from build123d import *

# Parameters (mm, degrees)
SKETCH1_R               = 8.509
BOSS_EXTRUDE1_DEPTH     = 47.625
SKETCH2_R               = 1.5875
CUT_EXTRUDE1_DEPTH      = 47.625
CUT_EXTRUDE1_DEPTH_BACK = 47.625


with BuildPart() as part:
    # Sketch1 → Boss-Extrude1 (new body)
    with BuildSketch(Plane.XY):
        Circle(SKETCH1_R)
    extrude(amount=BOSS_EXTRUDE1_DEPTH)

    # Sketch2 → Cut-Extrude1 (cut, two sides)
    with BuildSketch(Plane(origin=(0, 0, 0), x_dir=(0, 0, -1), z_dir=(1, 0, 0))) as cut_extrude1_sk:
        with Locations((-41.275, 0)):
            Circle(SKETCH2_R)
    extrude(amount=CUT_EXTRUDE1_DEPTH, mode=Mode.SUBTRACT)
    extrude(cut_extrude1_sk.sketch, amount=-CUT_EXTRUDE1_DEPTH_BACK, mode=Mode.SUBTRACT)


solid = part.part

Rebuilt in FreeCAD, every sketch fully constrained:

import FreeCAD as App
import Part
import Sketcher
Q = App.Units.Quantity

doc = App.newDocument("Part")
body = doc.addObject("PartDesign::Body", "Body")

# Sketch on XY plane
sketch1 = body.newObject("Sketcher::SketchObject", "Sketch")
sketch1.AttachmentSupport = (doc.getObject("XY_Plane"), [""])
sketch1.MapMode = "FlatFace"
sketch1.addGeometry(Part.Circle(App.Vector(0, 0, 0), App.Vector(0, 0, 1), 9), False)
sketch1.addConstraint(Sketcher.Constraint("Coincident", 0, 3, -1, 1))
sketch1.addConstraint(Sketcher.Constraint("Diameter", 0, Q("0.67 in")))
pad1 = body.newObject("PartDesign::Pad", "Pad")
pad1.Profile = sketch1
pad1.Length = Q("1.875 in")

# Sketch on YZ plane
sketch2 = body.newObject("Sketcher::SketchObject", "Sketch001")
sketch2.AttachmentSupport = (doc.getObject("YZ_Plane"), [""])
sketch2.MapMode = "FlatFace"
sketch2.addGeometry(Part.Circle(App.Vector(0, 41.3, 0), App.Vector(0, 0, 1), 1.6), False)
sketch2.addConstraint(Sketcher.Constraint("PointOnObject", 0, 3, -2))
sketch2.addConstraint(Sketcher.Constraint("Diameter", 0, Q("0.125 in")))
sketch2.addConstraint(Sketcher.Constraint("DistanceY", -1, 1, 0, 3, Q("1.625 in")))
pocket1 = body.newObject("PartDesign::Pocket", "Pocket")
pocket1.Profile = sketch2
pocket1.Type = "ThroughAll"
pocket1.Midplane = True

doc.recompute()
